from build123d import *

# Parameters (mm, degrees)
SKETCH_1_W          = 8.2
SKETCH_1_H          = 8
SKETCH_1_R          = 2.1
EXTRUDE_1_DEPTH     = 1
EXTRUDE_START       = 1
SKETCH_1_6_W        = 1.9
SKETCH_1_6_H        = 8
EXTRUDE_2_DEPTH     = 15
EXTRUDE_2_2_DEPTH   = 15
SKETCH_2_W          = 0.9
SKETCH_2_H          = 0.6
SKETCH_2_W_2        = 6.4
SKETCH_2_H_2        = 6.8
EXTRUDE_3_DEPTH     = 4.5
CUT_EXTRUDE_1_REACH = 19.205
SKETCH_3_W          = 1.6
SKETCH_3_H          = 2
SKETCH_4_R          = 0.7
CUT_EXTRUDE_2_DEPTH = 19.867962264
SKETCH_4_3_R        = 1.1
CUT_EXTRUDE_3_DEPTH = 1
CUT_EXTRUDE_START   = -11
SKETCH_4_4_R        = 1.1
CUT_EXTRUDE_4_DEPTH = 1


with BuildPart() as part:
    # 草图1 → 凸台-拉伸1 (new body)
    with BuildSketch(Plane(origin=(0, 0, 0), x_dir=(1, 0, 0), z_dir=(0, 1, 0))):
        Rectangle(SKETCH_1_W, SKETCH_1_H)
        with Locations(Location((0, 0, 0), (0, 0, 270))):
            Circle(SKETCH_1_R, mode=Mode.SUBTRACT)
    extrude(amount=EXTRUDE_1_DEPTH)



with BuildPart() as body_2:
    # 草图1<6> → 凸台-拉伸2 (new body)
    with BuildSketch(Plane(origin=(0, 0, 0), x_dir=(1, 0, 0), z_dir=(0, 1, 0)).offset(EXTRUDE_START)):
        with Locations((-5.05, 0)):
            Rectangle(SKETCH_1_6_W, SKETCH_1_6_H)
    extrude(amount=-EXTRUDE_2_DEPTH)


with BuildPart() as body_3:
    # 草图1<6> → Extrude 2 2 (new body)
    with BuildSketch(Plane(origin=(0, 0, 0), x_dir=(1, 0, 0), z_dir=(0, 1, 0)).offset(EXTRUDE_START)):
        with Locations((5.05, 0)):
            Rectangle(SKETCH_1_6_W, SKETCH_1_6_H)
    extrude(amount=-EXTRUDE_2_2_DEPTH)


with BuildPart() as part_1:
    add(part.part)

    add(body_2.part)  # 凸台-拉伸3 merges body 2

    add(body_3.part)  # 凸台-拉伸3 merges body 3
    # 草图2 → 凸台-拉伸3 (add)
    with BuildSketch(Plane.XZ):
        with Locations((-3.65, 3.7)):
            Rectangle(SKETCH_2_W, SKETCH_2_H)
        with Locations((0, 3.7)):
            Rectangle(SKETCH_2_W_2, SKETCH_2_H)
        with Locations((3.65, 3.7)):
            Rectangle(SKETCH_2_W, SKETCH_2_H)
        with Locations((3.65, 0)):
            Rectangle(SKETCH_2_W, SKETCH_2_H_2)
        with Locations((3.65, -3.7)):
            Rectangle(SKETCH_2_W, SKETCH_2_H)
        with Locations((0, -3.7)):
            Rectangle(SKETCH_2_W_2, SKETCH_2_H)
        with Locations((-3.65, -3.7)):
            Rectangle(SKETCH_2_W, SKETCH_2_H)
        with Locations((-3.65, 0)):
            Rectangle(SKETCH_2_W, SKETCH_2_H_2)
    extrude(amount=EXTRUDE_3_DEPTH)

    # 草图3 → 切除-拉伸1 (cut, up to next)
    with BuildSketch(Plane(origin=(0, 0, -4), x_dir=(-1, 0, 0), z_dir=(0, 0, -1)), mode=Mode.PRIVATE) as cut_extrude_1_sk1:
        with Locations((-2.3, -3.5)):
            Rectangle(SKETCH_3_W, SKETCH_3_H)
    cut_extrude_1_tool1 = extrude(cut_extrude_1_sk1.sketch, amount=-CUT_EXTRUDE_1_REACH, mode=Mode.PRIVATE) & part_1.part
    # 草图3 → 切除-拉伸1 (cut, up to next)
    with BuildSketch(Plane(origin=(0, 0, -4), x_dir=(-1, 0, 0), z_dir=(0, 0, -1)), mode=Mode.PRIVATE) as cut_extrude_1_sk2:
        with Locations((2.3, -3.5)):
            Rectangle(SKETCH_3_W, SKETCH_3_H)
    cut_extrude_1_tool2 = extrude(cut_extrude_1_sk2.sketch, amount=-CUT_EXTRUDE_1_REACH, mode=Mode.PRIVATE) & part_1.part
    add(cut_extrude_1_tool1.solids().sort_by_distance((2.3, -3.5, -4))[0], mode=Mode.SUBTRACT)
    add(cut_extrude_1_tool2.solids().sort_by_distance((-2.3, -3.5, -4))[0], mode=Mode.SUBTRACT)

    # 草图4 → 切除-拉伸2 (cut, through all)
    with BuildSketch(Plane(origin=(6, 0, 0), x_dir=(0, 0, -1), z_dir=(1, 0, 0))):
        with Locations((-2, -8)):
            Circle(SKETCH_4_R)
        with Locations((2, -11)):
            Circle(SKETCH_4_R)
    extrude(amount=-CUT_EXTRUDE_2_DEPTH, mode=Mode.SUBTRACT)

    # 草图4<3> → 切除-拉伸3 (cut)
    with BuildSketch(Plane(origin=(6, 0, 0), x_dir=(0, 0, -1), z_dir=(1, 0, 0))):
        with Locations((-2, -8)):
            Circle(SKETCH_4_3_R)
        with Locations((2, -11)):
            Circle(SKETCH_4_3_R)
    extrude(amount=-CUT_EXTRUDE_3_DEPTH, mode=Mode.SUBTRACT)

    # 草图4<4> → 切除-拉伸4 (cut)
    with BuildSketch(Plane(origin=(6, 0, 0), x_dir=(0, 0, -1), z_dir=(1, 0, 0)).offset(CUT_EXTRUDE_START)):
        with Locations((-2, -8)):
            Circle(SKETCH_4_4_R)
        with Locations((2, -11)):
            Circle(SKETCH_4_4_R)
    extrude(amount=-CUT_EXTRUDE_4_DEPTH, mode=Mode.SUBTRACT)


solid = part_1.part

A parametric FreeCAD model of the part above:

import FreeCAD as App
import Part
import Sketcher
from FreeCAD import Vector


def add_polygon(sketch, points):
    """Adds a closed chain of lines whose ends are joined by coincident constraints."""
    first, n = sketch.GeometryCount, len(points)
    for a, b in zip(points, points[1:] + points[:1]):
        sketch.addGeometry(Part.LineSegment(App.Vector(*a, 0), App.Vector(*b, 0)), False)
    for i in range(n):
        sketch.addConstraint(Sketcher.Constraint("Coincident", first + i, 2, first + (i + 1) % n, 1))

doc = App.newDocument("Part")
body = doc.addObject("PartDesign::Body", "Body")

sketch1 = body.newObject("Sketcher::SketchObject", "Sketch")
sketch1.AttachmentSupport = (doc.getObject("XZ_Plane"), [""])
sketch1.MapMode = "FlatFace"
add_polygon(sketch1, [(-4.1, -4), (-4.1, 4), (4.1, 4), (4.1, -4)])
sketch1.addGeometry(Part.Circle(Vector(0, 0, 0), Vector(0, 0, 1), 2.1), False)
sketch1.addConstraint(Sketcher.Constraint("Vertical", 0))
sketch1.addConstraint(Sketcher.Constraint("Horizontal", 1))
sketch1.addConstraint(Sketcher.Constraint("Vertical", 2))
sketch1.addConstraint(Sketcher.Constraint("Horizontal", 3))
sketch1.addConstraint(Sketcher.Constraint("Coincident", 4, 3, -1, 1))
sketch1.addConstraint(Sketcher.Constraint("Symmetric", 0, 2, 2, 2, -1, 1))
sketch1.addConstraint(Sketcher.Constraint("Diameter", 4, 4.2))
sketch1.addConstraint(Sketcher.Constraint("DistanceY", 0, 1, 0, 2, 8.0))
sketch1.addConstraint(Sketcher.Constraint("DistanceX", 1, 1, 1, 2, 8.2))
pad1 = body.newObject("PartDesign::Pad", "Pad")
pad1.Profile = sketch1
pad1.Length = 1
pad1.Reversed = True
body2 = doc.addObject("PartDesign::Body", "Body001")

sketch2 = body2.newObject("Sketcher::SketchObject", "Sketch001")
sketch2.AttachmentSupport = (doc.getObject("XZ_Plane001"), [""])
sketch2.MapMode = "FlatFace"
sketch2.AttachmentOffset = App.Placement(Vector(0, 0, -1), App.Rotation())
add_polygon(sketch2, [(-6, -4), (-6, 4), (-4.1, 4), (-4.1, -4)])
sketch2.addConstraint(Sketcher.Constraint("Vertical", 0))
sketch2.addConstraint(Sketcher.Constraint("Horizontal", 1))
sketch2.addConstraint(Sketcher.Constraint("Vertical", 2))
sketch2.addConstraint(Sketcher.Constraint("Horizontal", 3))
sketch2.addConstraint(Sketcher.Constraint("DistanceY", 0, 1, 0, 2, 8.0))
sketch2.addConstraint(Sketcher.Constraint("DistanceX", 1, 1, 1, 2, 1.9))
sketch2.addConstraint(Sketcher.Constraint("DistanceX", 0, 2, -1, 1, 6.0))
sketch2.addConstraint(Sketcher.Constraint("DistanceY", -1, 1, 0, 2, 4.0))
pad2 = body2.newObject("PartDesign::Pad", "Pad001")
pad2.Profile = sketch2
pad2.Length = 15
body3 = doc.addObject("PartDesign::Body", "Body002")

sketch3 = body3.newObject("Sketcher::SketchObject", "Sketch002")
sketch3.AttachmentSupport = (doc.getObject("XZ_Plane002"), [""])
sketch3.MapMode = "FlatFace"
sketch3.AttachmentOffset = App.Placement(Vector(0, 0, -1), App.Rotation())
add_polygon(sketch3, [(4.1, -4), (4.1, 4), (6, 4), (6, -4)])
sketch3.addConstraint(Sketcher.Constraint("Vertical", 0))
sketch3.addConstraint(Sketcher.Constraint("Horizontal", 1))
sketch3.addConstraint(Sketcher.Constraint("Vertical", 2))
sketch3.addConstraint(Sketcher.Constraint("Horizontal", 3))
sketch3.addConstraint(Sketcher.Constraint("DistanceY", 0, 1, 0, 2, 8.0))
sketch3.addConstraint(Sketcher.Constraint("DistanceX", 1, 1, 1, 2, 1.9))
sketch3.addConstraint(Sketcher.Constraint("DistanceY", -1, 1, 0, 2, 4.0))
sketch3.addConstraint(Sketcher.Constraint("DistanceX", -1, 1, 1, 2, 6.0))
pad3 = body3.newObject("PartDesign::Pad", "Pad002")
pad3.Profile = sketch3
pad3.Length = 15
doc.recompute()

boolean = body.newObject("PartDesign::Boolean", "Boolean")
boolean.Type = "Fuse"
boolean.addObjects([body2])
doc.recompute()

boolean2 = body.newObject("PartDesign::Boolean", "Boolean001")
boolean2.Type = "Fuse"
boolean2.addObjects([body3])

sketch4 = body.newObject("Sketcher::SketchObject", "Sketch003")
sketch4.AttachmentSupport = (doc.getObject("XZ_Plane"), [""])
sketch4.MapMode = "FlatFace"
add_polygon(sketch4, [(-4.1, 4), (-4.1, -4), (4.1, -4), (4.1, 4)])
add_polygon(sketch4, [(-3.2, 3.4), (3.2, 3.4), (3.2, -3.4), (-3.2, -3.4)])
sketch4.addConstraint(Sketcher.Constraint("Vertical", 0))
sketch4.addConstraint(Sketcher.Constraint("Horizontal", 1))
sketch4.addConstraint(Sketcher.Constraint("Vertical", 2))
sketch4.addConstraint(Sketcher.Constraint("Horizontal", 3))
sketch4.addConstraint(Sketcher.Constraint("Horizontal", 4))
sketch4.addConstraint(Sketcher.Constraint("Vertical", 5))
sketch4.addConstraint(Sketcher.Constraint("Horizontal", 6))
sketch4.addConstraint(Sketcher.Constraint("Vertical", 7))
sketch4.addConstraint(Sketcher.Constraint("Symmetric", 0, 2, 2, 2, -1, 1))
sketch4.addConstraint(Sketcher.Constraint("Symmetric", 4, 2, 6, 2, -1, 1))
sketch4.addConstraint(Sketcher.Constraint("DistanceY", 0, 2, 0, 1, 8.0))
sketch4.addConstraint(Sketcher.Constraint("DistanceX", 1, 1, 1, 2, 8.2))
sketch4.addConstraint(Sketcher.Constraint("DistanceX", 4, 1, 4, 2, 6.4))
sketch4.addConstraint(Sketcher.Constraint("DistanceY", 5, 2, 5, 1, 6.8))
pad4 = body.newObject("PartDesign::Pad", "Pad003")
pad4.Profile = sketch4
pad4.Length = 4.5

sketch5 = body.newObject("Sketcher::SketchObject", "Sketch004")
sketch5.AttachmentSupport = (doc.getObject("XY_Plane"), [""])
sketch5.MapMode = "FlatFace"
sketch5.AttachmentOffset = App.Placement(Vector(0, 0, -4), App.Rotation())
add_polygon(sketch5, [(3.1, -2.5), (3.1, -4.5), (1.5, -4.5), (1.5, -2.5)])
sketch5.addConstraint(Sketcher.Constraint("Vertical", 0))
sketch5.addConstraint(Sketcher.Constraint("Horizontal", 1))
sketch5.addConstraint(Sketcher.Constraint("Vertical", 2))
sketch5.addConstraint(Sketcher.Constraint("Horizontal", 3))
sketch5.addConstraint(Sketcher.Constraint("DistanceY", 0, 2, 0, 1, 2.0))
sketch5.addConstraint(Sketcher.Constraint("DistanceX", 1, 2, 1, 1, 1.6))
sketch5.addConstraint(Sketcher.Constraint("DistanceX", -1, 1, 0, 2, 3.1))
sketch5.addConstraint(Sketcher.Constraint("DistanceY", 0, 2, -1, 1, 4.5))
pocket1 = body.newObject("PartDesign::Pocket", "Pocket")
pocket1.Profile = sketch5
pocket1.Type = "UpToFirst"
pocket1.Reversed = True

sketch6 = body.newObject("Sketcher::SketchObject", "Sketch005")
sketch6.AttachmentSupport = (doc.getObject("XY_Plane"), [""])
sketch6.MapMode = "FlatFace"
sketch6.AttachmentOffset = App.Placement(Vector(0, 0, -4), App.Rotation())
add_polygon(sketch6, [(-1.5, -2.5), (-1.5, -4.5), (-3.1, -4.5), (-3.1, -2.5)])
sketch6.addConstraint(Sketcher.Constraint("Vertical", 0))
sketch6.addConstraint(Sketcher.Constraint("Horizontal", 1))
sketch6.addConstraint(Sketcher.Constraint("Vertical", 2))
sketch6.addConstraint(Sketcher.Constraint("Horizontal", 3))
sketch6.addConstraint(Sketcher.Constraint("DistanceY", 0, 2, 0, 1, 2.0))
sketch6.addConstraint(Sketcher.Constraint("DistanceX", 1, 2, 1, 1, 1.6))
sketch6.addConstraint(Sketcher.Constraint("DistanceX", 0, 2, -1, 1, 1.5))
sketch6.addConstraint(Sketcher.Constraint("DistanceY", 0, 2, -1, 1, 4.5))
pocket2 = body.newObject("PartDesign::Pocket", "Pocket001")
pocket2.Profile = sketch6
pocket2.Type = "UpToFirst"
pocket2.Reversed = True

sketch7 = body.newObject("Sketcher::SketchObject", "Sketch006")
sketch7.AttachmentSupport = (doc.getObject("YZ_Plane"), [""])
sketch7.MapMode = "FlatFace"
sketch7.AttachmentOffset = App.Placement(Vector(0, 0, 6), App.Rotation())
sketch7.addGeometry(Part.Circle(Vector(-8, 2, 0), Vector(0, 0, 1), 0.7), False)
sketch7.addGeometry(Part.Circle(Vector(-11, -2, 0), Vector(0, 0, 1), 0.7), False)
sketch7.addConstraint(Sketcher.Constraint("Equal", 0, 1))
sketch7.addConstraint(Sketcher.Constraint("Diameter", 0, 1.4))
sketch7.addConstraint(Sketcher.Constraint("DistanceX", 0, 3, -1, 1, 8.0))
sketch7.addConstraint(Sketcher.Constraint("DistanceY", -1, 1, 0, 3, 2.0))
sketch7.addConstraint(Sketcher.Constraint("DistanceX", 1, 3, -1, 1, 11.0))
sketch7.addConstraint(Sketcher.Constraint("DistanceY", 1, 3, -1, 1, 2.0))
pocket3 = body.newObject("PartDesign::Pocket", "Pocket002")
pocket3.Profile = sketch7
pocket3.Type = "ThroughAll"

sketch8 = body.newObject("Sketcher::SketchObject", "Sketch007")
sketch8.AttachmentSupport = (doc.getObject("YZ_Plane"), [""])
sketch8.MapMode = "FlatFace"
sketch8.AttachmentOffset = App.Placement(Vector(0, 0, 6), App.Rotation())
sketch8.addGeometry(Part.Circle(Vector(-8, 2, 0), Vector(0, 0, 1), 1.1), False)
sketch8.addGeometry(Part.Circle(Vector(-11, -2, 0), Vector(0, 0, 1), 1.1), False)
sketch8.addConstraint(Sketcher.Constraint("Equal", 0, 1))
sketch8.addConstraint(Sketcher.Constraint("Diameter", 0, 2.2))
sketch8.addConstraint(Sketcher.Constraint("DistanceX", 0, 3, -1, 1, 8.0))
sketch8.addConstraint(Sketcher.Constraint("DistanceY", -1, 1, 0, 3, 2.0))
sketch8.addConstraint(Sketcher.Constraint("DistanceX", 1, 3, -1, 1, 11.0))
sketch8.addConstraint(Sketcher.Constraint("DistanceY", 1, 3, -1, 1, 2.0))
pocket4 = body.newObject("PartDesign::Pocket", "Pocket003")
pocket4.Profile = sketch8
pocket4.Length = 1

sketch9 = body.newObject("Sketcher::SketchObject", "Sketch008")
sketch9.AttachmentSupport = (doc.getObject("YZ_Plane"), [""])
sketch9.MapMode = "FlatFace"
sketch9.AttachmentOffset = App.Placement(Vector(0, 0, -5), App.Rotation())
sketch9.addGeometry(Part.Circle(Vector(-8, 2, 0), Vector(0, 0, 1), 1.1), False)
sketch9.addGeometry(Part.Circle(Vector(-11, -2, 0), Vector(0, 0, 1), 1.1), False)
sketch9.addConstraint(Sketcher.Constraint("Equal", 0, 1))
sketch9.addConstraint(Sketcher.Constraint("Diameter", 0, 2.2))
sketch9.addConstraint(Sketcher.Constraint("DistanceX", 0, 3, -1, 1, 8.0))
sketch9.addConstraint(Sketcher.Constraint("DistanceY", -1, 1, 0, 3, 2.0))
sketch9.addConstraint(Sketcher.Constraint("DistanceX", 1, 3, -1, 1, 11.0))
sketch9.addConstraint(Sketcher.Constraint("DistanceY", 1, 3, -1, 1, 2.0))
pocket5 = body.newObject("PartDesign::Pocket", "Pocket004")
pocket5.Profile = sketch9
pocket5.Length = 1

doc.recompute()
